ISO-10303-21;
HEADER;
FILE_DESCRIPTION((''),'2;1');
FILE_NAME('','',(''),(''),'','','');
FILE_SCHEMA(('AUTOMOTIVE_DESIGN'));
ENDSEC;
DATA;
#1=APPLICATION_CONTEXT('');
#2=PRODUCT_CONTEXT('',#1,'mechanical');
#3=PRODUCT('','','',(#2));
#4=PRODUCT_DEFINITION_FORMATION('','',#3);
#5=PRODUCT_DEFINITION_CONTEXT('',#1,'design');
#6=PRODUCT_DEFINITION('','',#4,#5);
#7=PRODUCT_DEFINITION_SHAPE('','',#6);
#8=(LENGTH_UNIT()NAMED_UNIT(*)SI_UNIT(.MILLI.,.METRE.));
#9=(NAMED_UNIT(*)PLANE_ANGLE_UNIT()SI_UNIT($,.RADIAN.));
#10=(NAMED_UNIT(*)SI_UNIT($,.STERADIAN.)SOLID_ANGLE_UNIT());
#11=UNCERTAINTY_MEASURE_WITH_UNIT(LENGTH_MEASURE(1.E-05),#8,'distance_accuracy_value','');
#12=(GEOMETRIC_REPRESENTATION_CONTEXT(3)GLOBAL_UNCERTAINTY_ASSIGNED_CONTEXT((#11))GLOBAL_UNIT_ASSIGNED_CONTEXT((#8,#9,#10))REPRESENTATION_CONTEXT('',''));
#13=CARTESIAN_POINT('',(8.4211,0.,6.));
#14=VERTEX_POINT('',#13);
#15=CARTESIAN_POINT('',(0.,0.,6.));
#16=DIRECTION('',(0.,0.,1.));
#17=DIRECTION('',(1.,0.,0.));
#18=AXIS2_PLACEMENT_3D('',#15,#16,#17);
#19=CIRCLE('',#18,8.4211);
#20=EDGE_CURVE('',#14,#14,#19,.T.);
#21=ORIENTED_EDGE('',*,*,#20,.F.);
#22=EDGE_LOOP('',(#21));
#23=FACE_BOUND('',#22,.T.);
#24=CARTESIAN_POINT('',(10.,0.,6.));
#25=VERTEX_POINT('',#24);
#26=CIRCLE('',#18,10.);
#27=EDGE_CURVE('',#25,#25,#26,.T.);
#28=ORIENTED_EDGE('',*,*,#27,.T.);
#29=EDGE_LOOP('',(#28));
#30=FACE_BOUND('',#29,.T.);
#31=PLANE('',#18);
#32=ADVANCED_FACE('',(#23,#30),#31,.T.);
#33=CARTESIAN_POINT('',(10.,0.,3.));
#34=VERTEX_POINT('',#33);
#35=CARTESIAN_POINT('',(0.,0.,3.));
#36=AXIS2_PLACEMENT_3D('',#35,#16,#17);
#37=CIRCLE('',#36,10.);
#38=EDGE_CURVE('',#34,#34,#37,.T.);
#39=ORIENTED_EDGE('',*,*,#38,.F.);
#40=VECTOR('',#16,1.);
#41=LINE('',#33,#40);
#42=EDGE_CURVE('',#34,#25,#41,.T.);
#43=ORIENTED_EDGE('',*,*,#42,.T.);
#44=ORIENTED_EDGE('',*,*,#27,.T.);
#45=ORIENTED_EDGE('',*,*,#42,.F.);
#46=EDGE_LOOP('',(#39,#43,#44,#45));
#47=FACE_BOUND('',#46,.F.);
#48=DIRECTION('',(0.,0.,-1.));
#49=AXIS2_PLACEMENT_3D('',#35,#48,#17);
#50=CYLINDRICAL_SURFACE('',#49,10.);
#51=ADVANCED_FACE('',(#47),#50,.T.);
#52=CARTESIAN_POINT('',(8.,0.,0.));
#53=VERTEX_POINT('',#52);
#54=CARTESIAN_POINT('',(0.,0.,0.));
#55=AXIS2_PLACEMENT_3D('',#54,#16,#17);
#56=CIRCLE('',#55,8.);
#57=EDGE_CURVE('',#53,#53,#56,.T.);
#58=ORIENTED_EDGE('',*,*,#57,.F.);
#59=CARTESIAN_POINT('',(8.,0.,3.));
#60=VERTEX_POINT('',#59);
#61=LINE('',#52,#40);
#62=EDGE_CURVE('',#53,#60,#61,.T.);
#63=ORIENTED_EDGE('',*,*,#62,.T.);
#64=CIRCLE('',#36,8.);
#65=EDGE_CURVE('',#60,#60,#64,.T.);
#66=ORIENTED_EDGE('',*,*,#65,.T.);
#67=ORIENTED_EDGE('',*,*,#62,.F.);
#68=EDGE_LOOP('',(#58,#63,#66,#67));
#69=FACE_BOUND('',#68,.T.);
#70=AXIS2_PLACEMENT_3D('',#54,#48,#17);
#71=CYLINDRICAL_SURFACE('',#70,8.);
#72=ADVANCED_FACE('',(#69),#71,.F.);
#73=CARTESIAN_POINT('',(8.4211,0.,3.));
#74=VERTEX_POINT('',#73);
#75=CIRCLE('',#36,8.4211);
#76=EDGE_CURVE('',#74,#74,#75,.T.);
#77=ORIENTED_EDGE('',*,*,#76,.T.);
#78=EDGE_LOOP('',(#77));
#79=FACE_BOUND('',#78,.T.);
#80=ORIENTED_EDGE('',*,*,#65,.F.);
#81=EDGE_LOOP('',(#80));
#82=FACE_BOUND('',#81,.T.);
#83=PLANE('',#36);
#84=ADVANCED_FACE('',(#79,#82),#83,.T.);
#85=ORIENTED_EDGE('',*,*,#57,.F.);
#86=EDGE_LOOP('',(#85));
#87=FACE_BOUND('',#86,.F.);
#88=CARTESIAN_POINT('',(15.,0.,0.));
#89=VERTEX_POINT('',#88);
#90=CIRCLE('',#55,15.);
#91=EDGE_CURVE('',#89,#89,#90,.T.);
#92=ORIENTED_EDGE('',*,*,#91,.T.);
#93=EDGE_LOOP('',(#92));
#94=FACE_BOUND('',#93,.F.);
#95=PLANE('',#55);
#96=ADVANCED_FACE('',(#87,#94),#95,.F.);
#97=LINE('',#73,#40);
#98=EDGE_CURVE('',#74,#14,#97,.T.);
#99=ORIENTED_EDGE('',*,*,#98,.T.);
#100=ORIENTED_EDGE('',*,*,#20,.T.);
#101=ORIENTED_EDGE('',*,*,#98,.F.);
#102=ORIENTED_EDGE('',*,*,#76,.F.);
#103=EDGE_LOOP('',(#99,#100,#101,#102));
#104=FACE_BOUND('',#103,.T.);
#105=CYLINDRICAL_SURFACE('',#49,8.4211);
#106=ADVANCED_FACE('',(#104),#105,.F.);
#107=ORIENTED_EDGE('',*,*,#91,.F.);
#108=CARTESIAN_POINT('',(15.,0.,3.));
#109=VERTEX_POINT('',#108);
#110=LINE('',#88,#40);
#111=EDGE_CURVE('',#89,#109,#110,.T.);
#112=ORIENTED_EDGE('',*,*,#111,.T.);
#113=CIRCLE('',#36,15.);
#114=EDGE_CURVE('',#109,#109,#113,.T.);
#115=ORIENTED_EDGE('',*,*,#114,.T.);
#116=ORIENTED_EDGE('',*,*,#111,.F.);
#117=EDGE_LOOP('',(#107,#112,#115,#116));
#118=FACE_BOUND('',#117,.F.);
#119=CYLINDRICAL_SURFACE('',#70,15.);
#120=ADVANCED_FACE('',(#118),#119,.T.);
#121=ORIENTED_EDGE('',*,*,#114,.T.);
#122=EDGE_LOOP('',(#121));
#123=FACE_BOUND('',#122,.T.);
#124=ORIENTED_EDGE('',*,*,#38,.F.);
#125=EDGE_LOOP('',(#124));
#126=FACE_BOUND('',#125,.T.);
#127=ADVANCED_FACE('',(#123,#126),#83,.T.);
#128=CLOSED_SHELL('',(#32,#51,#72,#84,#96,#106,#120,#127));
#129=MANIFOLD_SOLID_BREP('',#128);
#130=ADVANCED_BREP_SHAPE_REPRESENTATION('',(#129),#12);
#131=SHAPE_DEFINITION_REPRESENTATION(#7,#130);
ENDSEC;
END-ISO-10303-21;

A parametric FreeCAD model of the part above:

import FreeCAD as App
import Part
import Sketcher

V = App.Vector
Q = App.Units.Quantity

doc = App.newDocument("Part")
params = doc.addObject("Spreadsheet::Sheet", "Params")
for row, (alias, value) in enumerate([
    ("sketch1_diameter", "30 mm"),
    ("sketch1_diameter2", "16 mm"),
    ("pad1_length", "3 mm"),
    ("sketch2_diameter", "20 mm"),
    ("pad2_length", "3 mm"),
], start=1):
    params.set(f"A{row}", alias)
    params.set(f"B{row}", "=" + value)
    params.setAlias(f"B{row}", alias)

body = doc.addObject("PartDesign::Body", "Body")

sketch1 = body.newObject("Sketcher::SketchObject", "Sketch")
sketch1.AttachmentSupport = (doc.getObject("XY_Plane"), [""])
sketch1.MapMode = "FlatFace"
sketch1.addGeometry([
    Part.Circle(V(0, 0, 0), V(0, 0, 1), 15),
    Part.Circle(V(0, 0, 0), V(0, 0, 1), 8),
], False)
sketch1.addConstraint([
    Sketcher.Constraint("Coincident", 0, 3, -1, 1),
    Sketcher.Constraint("Coincident", 1, 3, -1, 1),
    Sketcher.Constraint("Diameter", 0, Q("30 mm")),
    Sketcher.Constraint("Diameter", 1, Q("16 mm")),
])
sketch1.setExpression("Constraints[2]", "Params.sketch1_diameter")
sketch1.setExpression("Constraints[3]", "Params.sketch1_diameter2")
pad1 = body.newObject("PartDesign::Pad", "Pad")
pad1.Profile = sketch1
pad1.setExpression("Length", "Params.pad1_length")

sketch2 = body.newObject("Sketcher::SketchObject", "Sketch001")
sketch2.AttachmentSupport = (doc.getObject("XY_Plane"), [""])
sketch2.MapMode = "FlatFace"
sketch2.AttachmentOffset = App.Placement(V(0, 0, 3), App.Rotation())
sketch2.addGeometry([
    Part.Circle(V(0, 0, 0), V(0, 0, 1), 10),
    Part.Circle(V(0, 0, 0), V(0, 0, 1), 8.4211),
], False)
sketch2.addConstraint([
    Sketcher.Constraint("Coincident", 0, 3, -1, 1),
    Sketcher.Constraint("Coincident", 1, 3, -1, 1),
    Sketcher.Constraint("Diameter", 0, Q("20 mm")),
    Sketcher.Constraint("Diameter", 1, Q("16.8422 mm")),
])
sketch2.setExpression("Constraints[2]", "Params.sketch2_diameter")
pad2 = body.newObject("PartDesign::Pad", "Pad001")
pad2.Profile = sketch2
pad2.setExpression("Length", "Params.pad2_length")

doc.recompute()
